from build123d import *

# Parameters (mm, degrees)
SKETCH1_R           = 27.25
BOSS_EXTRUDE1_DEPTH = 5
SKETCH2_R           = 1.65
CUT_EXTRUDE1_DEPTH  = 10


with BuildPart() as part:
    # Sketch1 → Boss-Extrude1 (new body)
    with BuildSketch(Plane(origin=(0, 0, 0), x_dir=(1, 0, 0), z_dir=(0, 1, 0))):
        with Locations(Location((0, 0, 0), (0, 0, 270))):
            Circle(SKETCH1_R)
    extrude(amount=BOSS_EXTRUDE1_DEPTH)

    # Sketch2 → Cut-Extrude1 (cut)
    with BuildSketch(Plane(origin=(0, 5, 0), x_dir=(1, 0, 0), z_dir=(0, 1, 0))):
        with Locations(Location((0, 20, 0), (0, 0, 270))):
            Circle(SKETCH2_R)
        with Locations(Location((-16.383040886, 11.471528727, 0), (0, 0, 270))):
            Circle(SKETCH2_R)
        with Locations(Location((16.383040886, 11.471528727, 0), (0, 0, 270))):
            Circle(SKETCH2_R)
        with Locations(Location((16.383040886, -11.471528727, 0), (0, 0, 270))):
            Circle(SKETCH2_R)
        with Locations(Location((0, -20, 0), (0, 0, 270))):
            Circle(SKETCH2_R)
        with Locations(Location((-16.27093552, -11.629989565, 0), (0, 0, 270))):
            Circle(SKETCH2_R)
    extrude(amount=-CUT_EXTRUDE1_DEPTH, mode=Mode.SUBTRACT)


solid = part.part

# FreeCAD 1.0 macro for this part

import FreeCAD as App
import Part
import Sketcher

doc = App.newDocument("Part")
body = doc.addObject("PartDesign::Body", "Body")

sketch1 = doc.addObject("Sketcher::SketchObject", "Sketch")
body.addObject(sketch1)
sketch1.AttachmentSupport = (doc.XZ_Plane, [""])
sketch1.MapMode = "FlatFace"
sketch1.addGeometry(Part.Circle(App.Vector(0, 0, 0), App.Vector(0, 0, 1), 27), False)
sketch1.addConstraint(Sketcher.Constraint("Coincident", 0, 3, -1, 1))
sketch1.addConstraint(Sketcher.Constraint("Diameter", 0, 54.5))
pad1 = doc.addObject("PartDesign::Pad", "Pad")
body.addObject(pad1)
pad1.Profile = sketch1
pad1.Length = 5
pad1.Reversed = True

sketch2 = doc.addObject("Sketcher::SketchObject", "Sketch001")
body.addObject(sketch2)
sketch2.AttachmentSupport = (doc.XZ_Plane, [""])
sketch2.MapMode = "FlatFace"
sketch2.AttachmentOffset = App.Placement(App.Vector(0, 0, -5), App.Rotation())
sketch2.addGeometry(Part.Circle(App.Vector(0, -20, 0), App.Vector(0, 0, 1), 1.6), False)
sketch2.addGeometry(Part.Circle(App.Vector(-16.4, -11.5, 0), App.Vector(0, 0, 1), 1.6), False)
sketch2.addGeometry(Part.Circle(App.Vector(16.4, -11.5, 0), App.Vector(0, 0, 1), 1.6), False)
sketch2.addGeometry(Part.Circle(App.Vector(16.4, 11.5, 0), App.Vector(0, 0, 1), 1.6), False)
sketch2.addGeometry(Part.Circle(App.Vector(0, 20, 0), App.Vector(0, 0, 1), 1.6), False)
sketch2.addGeometry(Part.Circle(App.Vector(-16.3, 11.6, 0), App.Vector(0, 0, 1), 1.6), False)
sketch2.addConstraint(Sketcher.Constraint("Equal", 0, 1))
sketch2.addConstraint(Sketcher.Constraint("Equal", 1, 2))
sketch2.addConstraint(Sketcher.Constraint("Equal", 2, 3))
sketch2.addConstraint(Sketcher.Constraint("Equal", 3, 4))
sketch2.addConstraint(Sketcher.Constraint("Equal", 4, 5))
sketch2.addConstraint(Sketcher.Constraint("Symmetric", 1, 3, 3, 3, -1, 1))
sketch2.addConstraint(Sketcher.Constraint("Symmetric", 0, 3, 4, 3, -1, 1))
sketch2.addConstraint(Sketcher.Constraint("Symmetric", 1, 3, 2, 3, -2))
sketch2.addConstraint(Sketcher.Constraint("PointOnObject", 0, 3, -2))
sketch2.addConstraint(Sketcher.Constraint("Diameter", 0, 3.3))
sketch2.addConstraint(Sketcher.Constraint("DistanceY", 0, 3, -1, 1, 20.0))
sketch2.addConstraint(Sketcher.Constraint("DistanceX", 1, 3, -1, 1, 16.383041))
sketch2.addConstraint(Sketcher.Constraint("DistanceY", 1, 3, -1, 1, 11.471529))
sketch2.addConstraint(Sketcher.Constraint("DistanceY", -1, 1, 5, 3, 11.62999))
sketch2.addConstraint(Sketcher.Constraint("DistanceX", 5, 3, -1, 1, 16.270936))
pocket1 = doc.addObject("PartDesign::Pocket", "Pocket")
body.addObject(pocket1)
pocket1.Profile = sketch2
pocket1.Length = 10
pocket1.Reversed = True

doc.recompute()
